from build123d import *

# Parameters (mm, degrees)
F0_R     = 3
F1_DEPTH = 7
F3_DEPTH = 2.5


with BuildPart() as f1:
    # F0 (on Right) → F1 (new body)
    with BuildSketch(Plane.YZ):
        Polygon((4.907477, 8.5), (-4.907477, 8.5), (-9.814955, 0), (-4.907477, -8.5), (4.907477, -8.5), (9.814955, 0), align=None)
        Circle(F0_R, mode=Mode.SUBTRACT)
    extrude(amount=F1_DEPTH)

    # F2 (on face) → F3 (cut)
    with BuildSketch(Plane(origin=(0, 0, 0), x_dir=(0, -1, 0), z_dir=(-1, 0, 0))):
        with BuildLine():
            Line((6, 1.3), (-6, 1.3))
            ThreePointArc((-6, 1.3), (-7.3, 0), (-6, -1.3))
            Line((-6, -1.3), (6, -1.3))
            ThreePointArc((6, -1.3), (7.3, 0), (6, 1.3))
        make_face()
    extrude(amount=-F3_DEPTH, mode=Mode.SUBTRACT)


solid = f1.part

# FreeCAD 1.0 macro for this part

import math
import FreeCAD as App
import Part
import Sketcher

V = App.Vector
Q = App.Units.Quantity


def add_polygon(sketch, points):
    """Adds a closed chain of lines whose ends are joined by coincident constraints."""
    first, n = sketch.GeometryCount, len(points)
    for a, b in zip(points, points[1:] + points[:1]):
        sketch.addGeometry(Part.LineSegment(App.Vector(*a, 0), App.Vector(*b, 0)), False)
    for i in range(n):
        sketch.addConstraint(Sketcher.Constraint("Coincident", first + i, 2, first + (i + 1) % n, 1))

doc = App.newDocument("Part")
body = doc.addObject("PartDesign::Body", "Body")

# Sketch on YZ plane
sketch1 = doc.addObject("Sketcher::SketchObject", "Sketch")
body.addObject(sketch1)
sketch1.AttachmentSupport = (doc.YZ_Plane, [""])
sketch1.MapMode = "FlatFace"
add_polygon(sketch1, [(4.907477, 8.5), (-4.907477, 8.5), (-9.814955, 0), (-4.907477, -8.5), (4.907477, -8.5), (9.814955, 0)])  # lines 0-5
sketch1.addGeometry(Part.Circle(V(0, 0, 0), V(0, 0, 1), 3), False)  # 6
sketch1.addConstraint([
    Sketcher.Constraint("Horizontal", 0),
    Sketcher.Constraint("Horizontal", 3),
    Sketcher.Constraint("Coincident", 6, 3, -1, 1),
    Sketcher.Constraint("Symmetric", 0, 2, 3, 2, -1, 1),
    Sketcher.Constraint("Symmetric", 1, 2, 4, 2, -1, 1),
    Sketcher.Constraint("PointOnObject", 1, 2, -1),
    Sketcher.Constraint("Parallel", 2, 5),
    Sketcher.Constraint("Vertical", 0, 2, 2, 2),
    Sketcher.Constraint("Diameter", 6, Q("6 mm")),
    Sketcher.Constraint("Angle", 1, Q("-120.000004 deg")),
    Sketcher.Constraint("DistanceY", 2, 2, 0, 2, Q("17 mm")),
    Sketcher.Constraint("DistanceX", 0, 2, 0, 1, Q("9.814954 mm")),
])
pad1 = doc.addObject("PartDesign::Pad", "Pad")
body.addObject(pad1)
pad1.Profile = sketch1
pad1.Length = 7

# Sketch on YZ plane
sketch2 = doc.addObject("Sketcher::SketchObject", "Sketch001")
body.addObject(sketch2)
sketch2.AttachmentSupport = (doc.YZ_Plane, [""])
sketch2.MapMode = "FlatFace"
sketch2.addGeometry([
    Part.LineSegment(V(-6, 1.3, 0), V(6, 1.3, 0)),
    Part.ArcOfCircle(Part.Circle(V(6, 0, 0), V(0, 0, 1), 1.3), math.radians(-90), math.radians(90)),
    Part.LineSegment(V(6, -1.3, 0), V(-6, -1.3, 0)),
    Part.ArcOfCircle(Part.Circle(V(-6, 0, 0), V(0, 0, 1), 1.3), math.radians(90), math.radians(270)),
], False)
sketch2.addConstraint([
    Sketcher.Constraint("Tangent", 0, 2, 1, 2),
    Sketcher.Constraint("Tangent", 1, 1, 2, 1),
    Sketcher.Constraint("Tangent", 2, 2, 3, 2),
    Sketcher.Constraint("Tangent", 3, 1, 0, 1),
    Sketcher.Constraint("Horizontal", 0),
    Sketcher.Constraint("Horizontal", 2),
    Sketcher.Constraint("Symmetric", 1, 3, 3, 3, -1, 1),
    Sketcher.Constraint("Radius", 1, Q("1.3 mm")),
    Sketcher.Constraint("DistanceX", 0, 1, 0, 2, Q("12 mm")),
])
pocket1 = doc.addObject("PartDesign::Pocket", "Pocket")
body.addObject(pocket1)
pocket1.Profile = sketch2
pocket1.Length = 2.5
pocket1.Reversed = True

doc.recompute()
